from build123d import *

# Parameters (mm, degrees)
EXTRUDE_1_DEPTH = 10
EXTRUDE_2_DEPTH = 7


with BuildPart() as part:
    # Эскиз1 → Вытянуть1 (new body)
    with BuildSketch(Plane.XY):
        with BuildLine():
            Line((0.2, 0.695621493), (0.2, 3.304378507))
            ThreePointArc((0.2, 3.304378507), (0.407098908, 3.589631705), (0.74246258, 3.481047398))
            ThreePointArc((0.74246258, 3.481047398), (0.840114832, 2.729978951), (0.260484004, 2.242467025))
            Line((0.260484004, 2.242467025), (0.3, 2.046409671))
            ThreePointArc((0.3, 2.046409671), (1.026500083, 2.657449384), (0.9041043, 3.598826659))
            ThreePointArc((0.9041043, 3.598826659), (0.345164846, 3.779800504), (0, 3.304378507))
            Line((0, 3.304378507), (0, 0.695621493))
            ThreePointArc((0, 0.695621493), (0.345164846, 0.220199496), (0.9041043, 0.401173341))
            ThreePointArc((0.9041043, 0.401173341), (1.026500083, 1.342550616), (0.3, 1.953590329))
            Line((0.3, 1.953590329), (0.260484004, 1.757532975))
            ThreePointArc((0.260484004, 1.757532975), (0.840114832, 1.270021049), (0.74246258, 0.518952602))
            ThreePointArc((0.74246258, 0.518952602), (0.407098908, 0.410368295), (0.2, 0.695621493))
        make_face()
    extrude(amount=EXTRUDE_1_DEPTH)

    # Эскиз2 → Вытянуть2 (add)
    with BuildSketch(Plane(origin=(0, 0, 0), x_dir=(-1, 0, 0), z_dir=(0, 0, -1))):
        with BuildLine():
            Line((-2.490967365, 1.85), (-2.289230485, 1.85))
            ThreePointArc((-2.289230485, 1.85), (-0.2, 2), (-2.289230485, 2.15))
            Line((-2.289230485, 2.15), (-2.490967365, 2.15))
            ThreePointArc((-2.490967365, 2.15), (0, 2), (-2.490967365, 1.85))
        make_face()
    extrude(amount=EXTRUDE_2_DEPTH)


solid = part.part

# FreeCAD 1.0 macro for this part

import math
import FreeCAD as App
import Part
import Sketcher

V = App.Vector
Q = App.Units.Quantity

doc = App.newDocument("Part")
body = doc.addObject("PartDesign::Body", "Body")

# Sketch on XY plane
sketch1 = body.newObject("Sketcher::SketchObject", "Sketch")
sketch1.AttachmentSupport = (doc.getObject("XY_Plane"), [""])
sketch1.MapMode = "FlatFace"
sketch1.addGeometry([
    Part.LineSegment(V(0.2, 0.7, 0), V(0.2, 3.3, 0)),  # 0
    Part.ArcOfCircle(Part.Circle(V(0.5, 3.3, 0), V(0, 0, 1), 0.3), math.radians(36), math.radians(180)),  # 1
    Part.ArcOfCircle(Part.Circle(V(0.1, 3.02, 0), V(0, 0, 1), 0.79), math.radians(-79), math.radians(36)),  # 2
    Part.LineSegment(V(0.26, 2.24, 0), V(0.3, 2.05, 0)),  # 3
    Part.ArcOfCircle(Part.Circle(V(0.1, 3.02, 0), V(0, 0, 1), 0.99), math.radians(-79), math.radians(36)),  # 4
    Part.ArcOfCircle(Part.Circle(V(0.5, 3.3, 0), V(0, 0, 1), 0.5), math.radians(36), math.radians(180)),  # 5
    Part.LineSegment(V(0, 3.3, 0), V(0, 0.7, 0)),  # 6
    Part.ArcOfCircle(Part.Circle(V(0.5, 0.7, 0), V(0, 0, 1), 0.5), math.radians(180), math.radians(324)),  # 7
    Part.ArcOfCircle(Part.Circle(V(0.1, 0.98, 0), V(0, 0, 1), 0.99), math.radians(-36), math.radians(79)),  # 8
    Part.LineSegment(V(0.3, 1.95, 0), V(0.26, 1.76, 0)),  # 9
    Part.ArcOfCircle(Part.Circle(V(0.1, 0.98, 0), V(0, 0, 1), 0.79), math.radians(-36), math.radians(79)),  # 10
    Part.ArcOfCircle(Part.Circle(V(0.5, 0.7, 0), V(0, 0, 1), 0.3), math.radians(180), math.radians(324)),  # 11
], False)
sketch1.addConstraint([
    Sketcher.Constraint("Tangent", 0, 2, 1, 2),
    Sketcher.Constraint("Tangent", 1, 1, 2, 2),
    Sketcher.Constraint("Coincident", 2, 1, 3, 1),
    Sketcher.Constraint("Coincident", 3, 2, 4, 1),
    Sketcher.Constraint("Tangent", 4, 2, 5, 1),
    Sketcher.Constraint("Tangent", 5, 2, 6, 1),
    Sketcher.Constraint("Tangent", 6, 2, 7, 1),
    Sketcher.Constraint("Tangent", 7, 2, 8, 1),
    Sketcher.Constraint("Coincident", 8, 2, 9, 1),
    Sketcher.Constraint("Coincident", 9, 2, 10, 2),
    Sketcher.Constraint("Tangent", 10, 1, 11, 2),
    Sketcher.Constraint("Tangent", 11, 1, 0, 1),
    Sketcher.Constraint("Vertical", 0),
    Sketcher.Constraint("Vertical", 6),
    Sketcher.Constraint("Coincident", 4, 3, 2, 3),
    Sketcher.Constraint("Coincident", 5, 3, 1, 3),
    Sketcher.Constraint("Coincident", 10, 3, 8, 3),
    Sketcher.Constraint("Coincident", 11, 3, 7, 3),
    Sketcher.Constraint("Equal", 5, 7),
    Sketcher.Constraint("Equal", 4, 8),
    Sketcher.Constraint("PointOnObject", 5, 2, -2),
    Sketcher.Constraint("Vertical", 4, 3, 8, 3),
    Sketcher.Constraint("Vertical", 3, 2, 8, 2),
    Sketcher.Constraint("Vertical", 2, 1, 9, 2),
    Sketcher.Constraint("Radius", 1, Q("0.3 mm")),
    Sketcher.Constraint("Radius", 5, Q("0.5 mm")),
    Sketcher.Constraint("DistanceX", -1, 1, 3, 2, Q("0.3 mm")),
    Sketcher.Constraint("Radius", 2, Q("0.789315 mm")),
    Sketcher.Constraint("DistanceY", 7, 3, 2, 3, Q("2.320601 mm")),
    Sketcher.Constraint("DistanceY", 0, 1, 0, 2, Q("2.608757 mm")),
    Sketcher.Constraint("DistanceY", -1, 1, 1, 3, Q("3.304379 mm")),
    Sketcher.Constraint("DistanceY", 2, 1, 0, 2, Q("1.061911 mm")),
])
pad1 = body.newObject("PartDesign::Pad", "Pad")
pad1.Profile = sketch1
pad1.Length = 10

# Sketch on XY plane
sketch2 = body.newObject("Sketcher::SketchObject", "Sketch001")
sketch2.AttachmentSupport = (doc.getObject("XY_Plane"), [""])
sketch2.MapMode = "FlatFace"
sketch2.addGeometry([
    Part.LineSegment(V(2.29, 1.85, 0), V(2.49, 1.85, 0)),
    Part.ArcOfCircle(Part.Circle(V(1.25, 2, 0), V(0, 0, 1), 1.25), math.radians(7), math.radians(353)),
    Part.LineSegment(V(2.49, 2.15, 0), V(2.29, 2.15, 0)),
    Part.ArcOfCircle(Part.Circle(V(1.25, 2, 0), V(0, 0, 1), 1.05), math.radians(8), math.radians(352)),
], False)
sketch2.addConstraint([
    Sketcher.Constraint("Coincident", 0, 2, 1, 2),
    Sketcher.Constraint("Coincident", 1, 1, 2, 1),
    Sketcher.Constraint("Coincident", 2, 2, 3, 1),
    Sketcher.Constraint("Coincident", 3, 2, 0, 1),
    Sketcher.Constraint("Horizontal", 0),
    Sketcher.Constraint("Horizontal", 2),
    Sketcher.Constraint("Coincident", 3, 3, 1, 3),
    Sketcher.Constraint("Vertical", 0, 2, 1, 1),
    Sketcher.Constraint("Radius", 1, Q("1.25 mm")),
    Sketcher.Constraint("Radius", 3, Q("1.05 mm")),
    Sketcher.Constraint("DistanceY", -1, 1, 1, 3, Q("2 mm")),
    Sketcher.Constraint("DistanceY", 0, 2, 1, 1, Q("0.3 mm")),
    Sketcher.Constraint("DistanceX", -1, 1, 1, 3, Q("1.25 mm")),
])
pad2 = body.newObject("PartDesign::Pad", "Pad001")
pad2.Profile = sketch2
pad2.Length = 7
pad2.Reversed = True

doc.recompute()
